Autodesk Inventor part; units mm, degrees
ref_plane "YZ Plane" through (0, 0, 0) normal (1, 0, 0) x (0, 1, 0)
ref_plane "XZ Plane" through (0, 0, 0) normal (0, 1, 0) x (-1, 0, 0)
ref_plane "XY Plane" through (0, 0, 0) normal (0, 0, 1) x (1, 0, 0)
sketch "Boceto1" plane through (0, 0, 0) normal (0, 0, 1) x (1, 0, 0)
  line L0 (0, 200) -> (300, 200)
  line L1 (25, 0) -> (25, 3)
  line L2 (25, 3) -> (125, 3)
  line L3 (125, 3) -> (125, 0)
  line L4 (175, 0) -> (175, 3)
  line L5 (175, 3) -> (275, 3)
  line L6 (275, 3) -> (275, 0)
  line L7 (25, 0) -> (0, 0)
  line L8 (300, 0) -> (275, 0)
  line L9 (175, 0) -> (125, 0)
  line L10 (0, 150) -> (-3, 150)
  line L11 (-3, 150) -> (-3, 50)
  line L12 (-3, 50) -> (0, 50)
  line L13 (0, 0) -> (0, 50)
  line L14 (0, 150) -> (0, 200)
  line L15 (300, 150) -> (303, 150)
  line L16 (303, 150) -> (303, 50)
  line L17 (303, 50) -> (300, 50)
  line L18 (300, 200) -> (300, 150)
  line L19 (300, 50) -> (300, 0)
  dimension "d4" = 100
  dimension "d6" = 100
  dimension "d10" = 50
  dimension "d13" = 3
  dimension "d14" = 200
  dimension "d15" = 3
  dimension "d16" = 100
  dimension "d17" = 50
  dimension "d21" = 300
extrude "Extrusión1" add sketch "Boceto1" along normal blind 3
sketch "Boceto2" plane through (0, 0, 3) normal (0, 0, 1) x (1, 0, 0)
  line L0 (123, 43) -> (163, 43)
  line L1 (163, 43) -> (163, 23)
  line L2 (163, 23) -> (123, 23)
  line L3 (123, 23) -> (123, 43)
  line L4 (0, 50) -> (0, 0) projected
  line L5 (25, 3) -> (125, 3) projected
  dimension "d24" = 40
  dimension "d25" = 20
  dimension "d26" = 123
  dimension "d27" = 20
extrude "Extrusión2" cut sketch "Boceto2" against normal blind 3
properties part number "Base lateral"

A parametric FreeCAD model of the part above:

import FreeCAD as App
import Part
import Sketcher
from FreeCAD import Vector
Q = App.Units.Quantity

doc = App.newDocument("Part")
body = doc.addObject("PartDesign::Body", "Body")

# Sketch on XY plane
sketch1 = doc.addObject("Sketcher::SketchObject", "Sketch")
body.addObject(sketch1)
sketch1.AttachmentSupport = (doc.XY_Plane, [""])
sketch1.MapMode = "FlatFace"
sketch1.addGeometry(Part.LineSegment(Vector(300, 200, 0), Vector(0, 200, 0)), False)
sketch1.addGeometry(Part.LineSegment(Vector(0, 200, 0), Vector(0, 150, 0)), False)
sketch1.addGeometry(Part.LineSegment(Vector(0, 150, 0), Vector(-3, 150, 0)), False)
sketch1.addGeometry(Part.LineSegment(Vector(-3, 150, 0), Vector(-3, 50, 0)), False)
sketch1.addGeometry(Part.LineSegment(Vector(-3, 50, 0), Vector(0, 50, 0)), False)
sketch1.addGeometry(Part.LineSegment(Vector(0, 50, 0), Vector(0, 0, 0)), False)
sketch1.addGeometry(Part.LineSegment(Vector(0, 0, 0), Vector(25, 0, 0)), False)
sketch1.addGeometry(Part.LineSegment(Vector(25, 0, 0), Vector(25, 3, 0)), False)
sketch1.addGeometry(Part.LineSegment(Vector(25, 3, 0), Vector(125, 3, 0)), False)
sketch1.addGeometry(Part.LineSegment(Vector(125, 3, 0), Vector(125, 0, 0)), False)
sketch1.addGeometry(Part.LineSegment(Vector(125, 0, 0), Vector(175, 0, 0)), False)
sketch1.addGeometry(Part.LineSegment(Vector(175, 0, 0), Vector(175, 3, 0)), False)
sketch1.addGeometry(Part.LineSegment(Vector(175, 3, 0), Vector(275, 3, 0)), False)
sketch1.addGeometry(Part.LineSegment(Vector(275, 3, 0), Vector(275, 0, 0)), False)
sketch1.addGeometry(Part.LineSegment(Vector(275, 0, 0), Vector(300, 0, 0)), False)
sketch1.addGeometry(Part.LineSegment(Vector(300, 0, 0), Vector(300, 50, 0)), False)
sketch1.addGeometry(Part.LineSegment(Vector(300, 50, 0), Vector(303, 50, 0)), False)
sketch1.addGeometry(Part.LineSegment(Vector(303, 50, 0), Vector(303, 150, 0)), False)
sketch1.addGeometry(Part.LineSegment(Vector(303, 150, 0), Vector(300, 150, 0)), False)
sketch1.addGeometry(Part.LineSegment(Vector(300, 150, 0), Vector(300, 200, 0)), False)
sketch1.addConstraint(Sketcher.Constraint("Coincident", 0, 2, 1, 1))
sketch1.addConstraint(Sketcher.Constraint("Coincident", 1, 2, 2, 1))
sketch1.addConstraint(Sketcher.Constraint("Coincident", 2, 2, 3, 1))
sketch1.addConstraint(Sketcher.Constraint("Coincident", 3, 2, 4, 1))
sketch1.addConstraint(Sketcher.Constraint("Coincident", 4, 2, 5, 1))
sketch1.addConstraint(Sketcher.Constraint("Coincident", 5, 2, 6, 1))
sketch1.addConstraint(Sketcher.Constraint("Coincident", 6, 2, 7, 1))
sketch1.addConstraint(Sketcher.Constraint("Coincident", 7, 2, 8, 1))
sketch1.addConstraint(Sketcher.Constraint("Coincident", 8, 2, 9, 1))
sketch1.addConstraint(Sketcher.Constraint("Coincident", 9, 2, 10, 1))
sketch1.addConstraint(Sketcher.Constraint("Coincident", 10, 2, 11, 1))
sketch1.addConstraint(Sketcher.Constraint("Coincident", 11, 2, 12, 1))
sketch1.addConstraint(Sketcher.Constraint("Coincident", 12, 2, 13, 1))
sketch1.addConstraint(Sketcher.Constraint("Coincident", 13, 2, 14, 1))
sketch1.addConstraint(Sketcher.Constraint("Coincident", 14, 2, 15, 1))
sketch1.addConstraint(Sketcher.Constraint("Coincident", 15, 2, 16, 1))
sketch1.addConstraint(Sketcher.Constraint("Coincident", 16, 2, 17, 1))
sketch1.addConstraint(Sketcher.Constraint("Coincident", 17, 2, 18, 1))
sketch1.addConstraint(Sketcher.Constraint("Coincident", 18, 2, 19, 1))
sketch1.addConstraint(Sketcher.Constraint("Coincident", 19, 2, 0, 1))
sketch1.addConstraint(Sketcher.Constraint("Horizontal", 0))
sketch1.addConstraint(Sketcher.Constraint("Vertical", 1))
sketch1.addConstraint(Sketcher.Constraint("Horizontal", 2))
sketch1.addConstraint(Sketcher.Constraint("Vertical", 3))
sketch1.addConstraint(Sketcher.Constraint("Horizontal", 4))
sketch1.addConstraint(Sketcher.Constraint("Vertical", 5))
sketch1.addConstraint(Sketcher.Constraint("Horizontal", 6))
sketch1.addConstraint(Sketcher.Constraint("Vertical", 7))
sketch1.addConstraint(Sketcher.Constraint("Horizontal", 8))
sketch1.addConstraint(Sketcher.Constraint("Vertical", 9))
sketch1.addConstraint(Sketcher.Constraint("Horizontal", 10))
sketch1.addConstraint(Sketcher.Constraint("Vertical", 11))
sketch1.addConstraint(Sketcher.Constraint("Horizontal", 12))
sketch1.addConstraint(Sketcher.Constraint("Vertical", 13))
sketch1.addConstraint(Sketcher.Constraint("Horizontal", 14))
sketch1.addConstraint(Sketcher.Constraint("Vertical", 15))
sketch1.addConstraint(Sketcher.Constraint("Horizontal", 16))
sketch1.addConstraint(Sketcher.Constraint("Vertical", 17))
sketch1.addConstraint(Sketcher.Constraint("Horizontal", 18))
sketch1.addConstraint(Sketcher.Constraint("Vertical", 19))
sketch1.addConstraint(Sketcher.Constraint("Coincident", 5, 2, -1, 1))
sketch1.addConstraint(Sketcher.Constraint("PointOnObject", 0, 2, -2))
sketch1.addConstraint(Sketcher.Constraint("PointOnObject", 9, 2, -1))
sketch1.addConstraint(Sketcher.Constraint("PointOnObject", 13, 2, -1))
sketch1.addConstraint(Sketcher.Constraint("Horizontal", 8, 2, 11, 2))
sketch1.addConstraint(Sketcher.Constraint("Horizontal", 4, 2, 15, 2))
sketch1.addConstraint(Sketcher.Constraint("Horizontal", 2, 2, 17, 2))
sketch1.addConstraint(Sketcher.Constraint("Vertical", 15, 2, 18, 2))
sketch1.addConstraint(Sketcher.Constraint("Equal", 8, 12))
sketch1.addConstraint(Sketcher.Constraint("Equal", 6, 14))
sketch1.addConstraint(Sketcher.Constraint("Equal", 4, 16))
sketch1.addConstraint(Sketcher.Constraint("Equal", 10, 1))
sketch1.addConstraint(Sketcher.Constraint("Equal", 12, 3))
sketch1.addConstraint(Sketcher.Constraint("Equal", 1, 5))
sketch1.addConstraint(Sketcher.Constraint("Equal", 18, 7))
sketch1.addConstraint(Sketcher.Constraint("DistanceX", 0, 2, 0, 1, Q("300 mm")))
sketch1.addConstraint(Sketcher.Constraint("DistanceX", 2, 2, 2, 1, Q("3 mm")))
sketch1.addConstraint(Sketcher.Constraint("DistanceX", 8, 1, 8, 2, Q("100 mm")))
sketch1.addConstraint(Sketcher.Constraint("DistanceX", 10, 1, 10, 2, Q("50 mm")))
pad1 = doc.addObject("PartDesign::Pad", "Pad")
body.addObject(pad1)
pad1.Profile = sketch1
pad1.Length = 3

# Sketch on XY plane
sketch2 = doc.addObject("Sketcher::SketchObject", "Sketch001")
body.addObject(sketch2)
sketch2.AttachmentSupport = (doc.XY_Plane, [""])
sketch2.MapMode = "FlatFace"
sketch2.AttachmentOffset = App.Placement(Vector(0, 0, 3), App.Rotation())
sketch2.addGeometry(Part.LineSegment(Vector(163, 43, 0), Vector(123, 43, 0)), False)
sketch2.addGeometry(Part.LineSegment(Vector(123, 43, 0), Vector(123, 23, 0)), False)
sketch2.addGeometry(Part.LineSegment(Vector(123, 23, 0), Vector(163, 23, 0)), False)
sketch2.addGeometry(Part.LineSegment(Vector(163, 23, 0), Vector(163, 43, 0)), False)
sketch2.addConstraint(Sketcher.Constraint("Coincident", 0, 2, 1, 1))
sketch2.addConstraint(Sketcher.Constraint("Coincident", 1, 2, 2, 1))
sketch2.addConstraint(Sketcher.Constraint("Coincident", 2, 2, 3, 1))
sketch2.addConstraint(Sketcher.Constraint("Coincident", 3, 2, 0, 1))
sketch2.addConstraint(Sketcher.Constraint("Horizontal", 0))
sketch2.addConstraint(Sketcher.Constraint("Vertical", 1))
sketch2.addConstraint(Sketcher.Constraint("Horizontal", 2))
sketch2.addConstraint(Sketcher.Constraint("Vertical", 3))
sketch2.addConstraint(Sketcher.Constraint("DistanceX", 0, 2, 0, 1, Q("40 mm")))
sketch2.addConstraint(Sketcher.Constraint("DistanceY", 1, 2, 1, 1, Q("20 mm")))
sketch2.addConstraint(Sketcher.Constraint("DistanceX", -1, 1, 0, 2, Q("123 mm")))
sketch2.addConstraint(Sketcher.Constraint("DistanceY", -1, 1, 0, 2, Q("43 mm")))
pocket1 = doc.addObject("PartDesign::Pocket", "Pocket")
body.addObject(pocket1)
pocket1.Profile = sketch2
pocket1.Length = 3

doc.recompute()
